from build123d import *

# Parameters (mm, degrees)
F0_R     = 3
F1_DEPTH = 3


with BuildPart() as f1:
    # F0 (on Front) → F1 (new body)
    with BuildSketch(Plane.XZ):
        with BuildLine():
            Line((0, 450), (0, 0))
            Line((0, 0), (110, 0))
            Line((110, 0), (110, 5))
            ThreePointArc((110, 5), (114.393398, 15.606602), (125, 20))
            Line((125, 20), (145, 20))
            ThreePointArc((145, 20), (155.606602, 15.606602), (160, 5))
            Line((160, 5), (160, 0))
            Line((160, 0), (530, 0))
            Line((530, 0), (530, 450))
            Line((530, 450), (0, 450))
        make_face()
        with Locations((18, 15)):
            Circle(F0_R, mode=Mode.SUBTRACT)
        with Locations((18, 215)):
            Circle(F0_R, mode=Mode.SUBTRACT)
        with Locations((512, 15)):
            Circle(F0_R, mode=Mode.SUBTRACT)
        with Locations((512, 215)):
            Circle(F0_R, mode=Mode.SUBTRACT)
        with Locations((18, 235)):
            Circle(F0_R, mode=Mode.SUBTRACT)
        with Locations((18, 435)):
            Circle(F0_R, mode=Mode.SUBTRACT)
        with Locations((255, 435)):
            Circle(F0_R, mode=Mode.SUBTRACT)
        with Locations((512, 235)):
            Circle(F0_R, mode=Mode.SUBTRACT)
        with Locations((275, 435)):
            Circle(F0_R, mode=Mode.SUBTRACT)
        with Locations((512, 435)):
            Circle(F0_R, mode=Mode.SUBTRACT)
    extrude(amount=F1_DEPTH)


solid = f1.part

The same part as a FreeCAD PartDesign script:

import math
import FreeCAD as App
import Part
import Sketcher
Q = App.Units.Quantity

doc = App.newDocument("Part")
params = doc.addObject("Spreadsheet::Sheet", "Params")
for row, (alias, value) in enumerate([
    ("sketch1_diameter", "6 mm"),
    ("sketch1_radius", "14.999999 mm"),
    ("sketch1_width", "110 mm"),
    ("sketch1_width2", "20 mm"),
    ("sketch1_width3", "370 mm"),
    ("pad1_length", "3 mm"),
], start=1):
    params.set(f"A{row}", alias)
    params.set(f"B{row}", "=" + value)
    params.setAlias(f"B{row}", alias)

body = doc.addObject("PartDesign::Body", "Body")

sketch1 = body.newObject("Sketcher::SketchObject", "Sketch")
sketch1.AttachmentSupport = (doc.getObject("XZ_Plane"), [""])
sketch1.MapMode = "FlatFace"
sketch1.addGeometry([
    Part.LineSegment(App.Vector(0, 450, 0), App.Vector(0, 0, 0)),
    Part.LineSegment(App.Vector(0, 0, 0), App.Vector(110, 0, 0)),
    Part.LineSegment(App.Vector(110, 0, 0), App.Vector(110, 5, 0)),
    Part.ArcOfCircle(Part.Circle(App.Vector(125, 5, 0), App.Vector(0, 0, 1), 15), math.radians(90), math.radians(180)),
    Part.LineSegment(App.Vector(125, 20, 0), App.Vector(145, 20, 0)),
    Part.ArcOfCircle(Part.Circle(App.Vector(145, 5, 0), App.Vector(0, 0, 1), 15), math.radians(0), math.radians(90)),
    Part.LineSegment(App.Vector(160, 5, 0), App.Vector(160, 0, 0)),
    Part.LineSegment(App.Vector(160, 0, 0), App.Vector(530, 0, 0)),
    Part.LineSegment(App.Vector(530, 0, 0), App.Vector(530, 450, 0)),
    Part.LineSegment(App.Vector(530, 450, 0), App.Vector(0, 450, 0)),
    Part.Circle(App.Vector(18, 15, 0), App.Vector(0, 0, 1), 3),
    Part.Circle(App.Vector(18, 215, 0), App.Vector(0, 0, 1), 3),
    Part.Circle(App.Vector(512, 15, 0), App.Vector(0, 0, 1), 3),
    Part.Circle(App.Vector(512, 215, 0), App.Vector(0, 0, 1), 3),
    Part.Circle(App.Vector(18, 235, 0), App.Vector(0, 0, 1), 3),
    Part.Circle(App.Vector(18, 435, 0), App.Vector(0, 0, 1), 3),
    Part.Circle(App.Vector(255, 435, 0), App.Vector(0, 0, 1), 3),
    Part.Circle(App.Vector(512, 235, 0), App.Vector(0, 0, 1), 3),
    Part.Circle(App.Vector(275, 435, 0), App.Vector(0, 0, 1), 3),
    Part.Circle(App.Vector(512, 435, 0), App.Vector(0, 0, 1), 3),
], False)
sketch1.addConstraint([
    Sketcher.Constraint("Coincident", 0, 2, 1, 1),
    Sketcher.Constraint("Coincident", 1, 2, 2, 1),
    Sketcher.Constraint("Tangent", 2, 2, 3, 2),
    Sketcher.Constraint("Tangent", 3, 1, 4, 1),
    Sketcher.Constraint("Tangent", 4, 2, 5, 2),
    Sketcher.Constraint("Tangent", 5, 1, 6, 1),
    Sketcher.Constraint("Coincident", 6, 2, 7, 1),
    Sketcher.Constraint("Coincident", 7, 2, 8, 1),
    Sketcher.Constraint("Coincident", 8, 2, 9, 1),
    Sketcher.Constraint("Coincident", 9, 2, 0, 1),
    Sketcher.Constraint("Vertical", 0),
    Sketcher.Constraint("Horizontal", 1),
    Sketcher.Constraint("Vertical", 2),
    Sketcher.Constraint("Horizontal", 4),
    Sketcher.Constraint("Vertical", 6),
    Sketcher.Constraint("Horizontal", 7),
    Sketcher.Constraint("Vertical", 8),
    Sketcher.Constraint("Horizontal", 9),
    Sketcher.Constraint("Coincident", 0, 2, -1, 1),
    Sketcher.Constraint("Equal", 3, 5),
    Sketcher.Constraint("Equal", 10, 11),
    Sketcher.Constraint("Equal", 11, 12),
    Sketcher.Constraint("Equal", 12, 13),
    Sketcher.Constraint("Equal", 13, 14),
    Sketcher.Constraint("Equal", 14, 15),
    Sketcher.Constraint("Equal", 15, 16),
    Sketcher.Constraint("Equal", 16, 17),
    Sketcher.Constraint("Equal", 17, 18),
    Sketcher.Constraint("Equal", 18, 19),
    Sketcher.Constraint("PointOnObject", 6, 2, -1),
    Sketcher.Constraint("Horizontal", 10, 3, 12, 3),
    Sketcher.Constraint("Horizontal", 11, 3, 13, 3),
    Sketcher.Constraint("Horizontal", 15, 3, 16, 3),
    Sketcher.Constraint("Horizontal", 14, 3, 17, 3),
    Sketcher.Constraint("Horizontal", 16, 3, 18, 3),
    Sketcher.Constraint("Horizontal", 18, 3, 19, 3),
    Sketcher.Constraint("Vertical", 10, 3, 11, 3),
    Sketcher.Constraint("Vertical", 12, 3, 13, 3),
    Sketcher.Constraint("Vertical", 11, 3, 14, 3),
    Sketcher.Constraint("Vertical", 14, 3, 15, 3),
    Sketcher.Constraint("Vertical", 13, 3, 17, 3),
    Sketcher.Constraint("Vertical", 17, 3, 19, 3),
    Sketcher.Constraint("Diameter", 10, Q("6 mm")),
    Sketcher.Constraint("Radius", 3, Q("14.999999 mm")),
    Sketcher.Constraint("DistanceX", 1, 1, 1, 2, Q("110 mm")),
    Sketcher.Constraint("DistanceX", 4, 1, 4, 2, Q("20 mm")),
    Sketcher.Constraint("DistanceX", 7, 1, 7, 2, Q("370 mm")),
    Sketcher.Constraint("DistanceY", 0, 2, 0, 1, Q("450 mm")),
    Sketcher.Constraint("DistanceY", 2, 1, 2, 2, Q("5 mm")),
    Sketcher.Constraint("DistanceX", -1, 1, 10, 3, Q("18 mm")),
    Sketcher.Constraint("DistanceY", -1, 1, 10, 3, Q("15 mm")),
    Sketcher.Constraint("DistanceY", -1, 1, 11, 3, Q("215 mm")),
    Sketcher.Constraint("DistanceX", -1, 1, 12, 3, Q("512 mm")),
    Sketcher.Constraint("DistanceY", -1, 1, 14, 3, Q("235 mm")),
    Sketcher.Constraint("DistanceY", -1, 1, 15, 3, Q("435 mm")),
    Sketcher.Constraint("DistanceX", -1, 1, 16, 3, Q("255 mm")),
    Sketcher.Constraint("DistanceX", -1, 1, 18, 3, Q("275 mm")),
])
sketch1.setExpression("Constraints[42]", "Params.sketch1_diameter")
sketch1.setExpression("Constraints[43]", "Params.sketch1_radius")
sketch1.setExpression("Constraints[44]", "Params.sketch1_width")
sketch1.setExpression("Constraints[45]", "Params.sketch1_width2")
sketch1.setExpression("Constraints[46]", "Params.sketch1_width3")
pad1 = body.newObject("PartDesign::Pad", "Pad")
pad1.Profile = sketch1
pad1.setExpression("Length", "Params.pad1_length")

doc.recompute()
